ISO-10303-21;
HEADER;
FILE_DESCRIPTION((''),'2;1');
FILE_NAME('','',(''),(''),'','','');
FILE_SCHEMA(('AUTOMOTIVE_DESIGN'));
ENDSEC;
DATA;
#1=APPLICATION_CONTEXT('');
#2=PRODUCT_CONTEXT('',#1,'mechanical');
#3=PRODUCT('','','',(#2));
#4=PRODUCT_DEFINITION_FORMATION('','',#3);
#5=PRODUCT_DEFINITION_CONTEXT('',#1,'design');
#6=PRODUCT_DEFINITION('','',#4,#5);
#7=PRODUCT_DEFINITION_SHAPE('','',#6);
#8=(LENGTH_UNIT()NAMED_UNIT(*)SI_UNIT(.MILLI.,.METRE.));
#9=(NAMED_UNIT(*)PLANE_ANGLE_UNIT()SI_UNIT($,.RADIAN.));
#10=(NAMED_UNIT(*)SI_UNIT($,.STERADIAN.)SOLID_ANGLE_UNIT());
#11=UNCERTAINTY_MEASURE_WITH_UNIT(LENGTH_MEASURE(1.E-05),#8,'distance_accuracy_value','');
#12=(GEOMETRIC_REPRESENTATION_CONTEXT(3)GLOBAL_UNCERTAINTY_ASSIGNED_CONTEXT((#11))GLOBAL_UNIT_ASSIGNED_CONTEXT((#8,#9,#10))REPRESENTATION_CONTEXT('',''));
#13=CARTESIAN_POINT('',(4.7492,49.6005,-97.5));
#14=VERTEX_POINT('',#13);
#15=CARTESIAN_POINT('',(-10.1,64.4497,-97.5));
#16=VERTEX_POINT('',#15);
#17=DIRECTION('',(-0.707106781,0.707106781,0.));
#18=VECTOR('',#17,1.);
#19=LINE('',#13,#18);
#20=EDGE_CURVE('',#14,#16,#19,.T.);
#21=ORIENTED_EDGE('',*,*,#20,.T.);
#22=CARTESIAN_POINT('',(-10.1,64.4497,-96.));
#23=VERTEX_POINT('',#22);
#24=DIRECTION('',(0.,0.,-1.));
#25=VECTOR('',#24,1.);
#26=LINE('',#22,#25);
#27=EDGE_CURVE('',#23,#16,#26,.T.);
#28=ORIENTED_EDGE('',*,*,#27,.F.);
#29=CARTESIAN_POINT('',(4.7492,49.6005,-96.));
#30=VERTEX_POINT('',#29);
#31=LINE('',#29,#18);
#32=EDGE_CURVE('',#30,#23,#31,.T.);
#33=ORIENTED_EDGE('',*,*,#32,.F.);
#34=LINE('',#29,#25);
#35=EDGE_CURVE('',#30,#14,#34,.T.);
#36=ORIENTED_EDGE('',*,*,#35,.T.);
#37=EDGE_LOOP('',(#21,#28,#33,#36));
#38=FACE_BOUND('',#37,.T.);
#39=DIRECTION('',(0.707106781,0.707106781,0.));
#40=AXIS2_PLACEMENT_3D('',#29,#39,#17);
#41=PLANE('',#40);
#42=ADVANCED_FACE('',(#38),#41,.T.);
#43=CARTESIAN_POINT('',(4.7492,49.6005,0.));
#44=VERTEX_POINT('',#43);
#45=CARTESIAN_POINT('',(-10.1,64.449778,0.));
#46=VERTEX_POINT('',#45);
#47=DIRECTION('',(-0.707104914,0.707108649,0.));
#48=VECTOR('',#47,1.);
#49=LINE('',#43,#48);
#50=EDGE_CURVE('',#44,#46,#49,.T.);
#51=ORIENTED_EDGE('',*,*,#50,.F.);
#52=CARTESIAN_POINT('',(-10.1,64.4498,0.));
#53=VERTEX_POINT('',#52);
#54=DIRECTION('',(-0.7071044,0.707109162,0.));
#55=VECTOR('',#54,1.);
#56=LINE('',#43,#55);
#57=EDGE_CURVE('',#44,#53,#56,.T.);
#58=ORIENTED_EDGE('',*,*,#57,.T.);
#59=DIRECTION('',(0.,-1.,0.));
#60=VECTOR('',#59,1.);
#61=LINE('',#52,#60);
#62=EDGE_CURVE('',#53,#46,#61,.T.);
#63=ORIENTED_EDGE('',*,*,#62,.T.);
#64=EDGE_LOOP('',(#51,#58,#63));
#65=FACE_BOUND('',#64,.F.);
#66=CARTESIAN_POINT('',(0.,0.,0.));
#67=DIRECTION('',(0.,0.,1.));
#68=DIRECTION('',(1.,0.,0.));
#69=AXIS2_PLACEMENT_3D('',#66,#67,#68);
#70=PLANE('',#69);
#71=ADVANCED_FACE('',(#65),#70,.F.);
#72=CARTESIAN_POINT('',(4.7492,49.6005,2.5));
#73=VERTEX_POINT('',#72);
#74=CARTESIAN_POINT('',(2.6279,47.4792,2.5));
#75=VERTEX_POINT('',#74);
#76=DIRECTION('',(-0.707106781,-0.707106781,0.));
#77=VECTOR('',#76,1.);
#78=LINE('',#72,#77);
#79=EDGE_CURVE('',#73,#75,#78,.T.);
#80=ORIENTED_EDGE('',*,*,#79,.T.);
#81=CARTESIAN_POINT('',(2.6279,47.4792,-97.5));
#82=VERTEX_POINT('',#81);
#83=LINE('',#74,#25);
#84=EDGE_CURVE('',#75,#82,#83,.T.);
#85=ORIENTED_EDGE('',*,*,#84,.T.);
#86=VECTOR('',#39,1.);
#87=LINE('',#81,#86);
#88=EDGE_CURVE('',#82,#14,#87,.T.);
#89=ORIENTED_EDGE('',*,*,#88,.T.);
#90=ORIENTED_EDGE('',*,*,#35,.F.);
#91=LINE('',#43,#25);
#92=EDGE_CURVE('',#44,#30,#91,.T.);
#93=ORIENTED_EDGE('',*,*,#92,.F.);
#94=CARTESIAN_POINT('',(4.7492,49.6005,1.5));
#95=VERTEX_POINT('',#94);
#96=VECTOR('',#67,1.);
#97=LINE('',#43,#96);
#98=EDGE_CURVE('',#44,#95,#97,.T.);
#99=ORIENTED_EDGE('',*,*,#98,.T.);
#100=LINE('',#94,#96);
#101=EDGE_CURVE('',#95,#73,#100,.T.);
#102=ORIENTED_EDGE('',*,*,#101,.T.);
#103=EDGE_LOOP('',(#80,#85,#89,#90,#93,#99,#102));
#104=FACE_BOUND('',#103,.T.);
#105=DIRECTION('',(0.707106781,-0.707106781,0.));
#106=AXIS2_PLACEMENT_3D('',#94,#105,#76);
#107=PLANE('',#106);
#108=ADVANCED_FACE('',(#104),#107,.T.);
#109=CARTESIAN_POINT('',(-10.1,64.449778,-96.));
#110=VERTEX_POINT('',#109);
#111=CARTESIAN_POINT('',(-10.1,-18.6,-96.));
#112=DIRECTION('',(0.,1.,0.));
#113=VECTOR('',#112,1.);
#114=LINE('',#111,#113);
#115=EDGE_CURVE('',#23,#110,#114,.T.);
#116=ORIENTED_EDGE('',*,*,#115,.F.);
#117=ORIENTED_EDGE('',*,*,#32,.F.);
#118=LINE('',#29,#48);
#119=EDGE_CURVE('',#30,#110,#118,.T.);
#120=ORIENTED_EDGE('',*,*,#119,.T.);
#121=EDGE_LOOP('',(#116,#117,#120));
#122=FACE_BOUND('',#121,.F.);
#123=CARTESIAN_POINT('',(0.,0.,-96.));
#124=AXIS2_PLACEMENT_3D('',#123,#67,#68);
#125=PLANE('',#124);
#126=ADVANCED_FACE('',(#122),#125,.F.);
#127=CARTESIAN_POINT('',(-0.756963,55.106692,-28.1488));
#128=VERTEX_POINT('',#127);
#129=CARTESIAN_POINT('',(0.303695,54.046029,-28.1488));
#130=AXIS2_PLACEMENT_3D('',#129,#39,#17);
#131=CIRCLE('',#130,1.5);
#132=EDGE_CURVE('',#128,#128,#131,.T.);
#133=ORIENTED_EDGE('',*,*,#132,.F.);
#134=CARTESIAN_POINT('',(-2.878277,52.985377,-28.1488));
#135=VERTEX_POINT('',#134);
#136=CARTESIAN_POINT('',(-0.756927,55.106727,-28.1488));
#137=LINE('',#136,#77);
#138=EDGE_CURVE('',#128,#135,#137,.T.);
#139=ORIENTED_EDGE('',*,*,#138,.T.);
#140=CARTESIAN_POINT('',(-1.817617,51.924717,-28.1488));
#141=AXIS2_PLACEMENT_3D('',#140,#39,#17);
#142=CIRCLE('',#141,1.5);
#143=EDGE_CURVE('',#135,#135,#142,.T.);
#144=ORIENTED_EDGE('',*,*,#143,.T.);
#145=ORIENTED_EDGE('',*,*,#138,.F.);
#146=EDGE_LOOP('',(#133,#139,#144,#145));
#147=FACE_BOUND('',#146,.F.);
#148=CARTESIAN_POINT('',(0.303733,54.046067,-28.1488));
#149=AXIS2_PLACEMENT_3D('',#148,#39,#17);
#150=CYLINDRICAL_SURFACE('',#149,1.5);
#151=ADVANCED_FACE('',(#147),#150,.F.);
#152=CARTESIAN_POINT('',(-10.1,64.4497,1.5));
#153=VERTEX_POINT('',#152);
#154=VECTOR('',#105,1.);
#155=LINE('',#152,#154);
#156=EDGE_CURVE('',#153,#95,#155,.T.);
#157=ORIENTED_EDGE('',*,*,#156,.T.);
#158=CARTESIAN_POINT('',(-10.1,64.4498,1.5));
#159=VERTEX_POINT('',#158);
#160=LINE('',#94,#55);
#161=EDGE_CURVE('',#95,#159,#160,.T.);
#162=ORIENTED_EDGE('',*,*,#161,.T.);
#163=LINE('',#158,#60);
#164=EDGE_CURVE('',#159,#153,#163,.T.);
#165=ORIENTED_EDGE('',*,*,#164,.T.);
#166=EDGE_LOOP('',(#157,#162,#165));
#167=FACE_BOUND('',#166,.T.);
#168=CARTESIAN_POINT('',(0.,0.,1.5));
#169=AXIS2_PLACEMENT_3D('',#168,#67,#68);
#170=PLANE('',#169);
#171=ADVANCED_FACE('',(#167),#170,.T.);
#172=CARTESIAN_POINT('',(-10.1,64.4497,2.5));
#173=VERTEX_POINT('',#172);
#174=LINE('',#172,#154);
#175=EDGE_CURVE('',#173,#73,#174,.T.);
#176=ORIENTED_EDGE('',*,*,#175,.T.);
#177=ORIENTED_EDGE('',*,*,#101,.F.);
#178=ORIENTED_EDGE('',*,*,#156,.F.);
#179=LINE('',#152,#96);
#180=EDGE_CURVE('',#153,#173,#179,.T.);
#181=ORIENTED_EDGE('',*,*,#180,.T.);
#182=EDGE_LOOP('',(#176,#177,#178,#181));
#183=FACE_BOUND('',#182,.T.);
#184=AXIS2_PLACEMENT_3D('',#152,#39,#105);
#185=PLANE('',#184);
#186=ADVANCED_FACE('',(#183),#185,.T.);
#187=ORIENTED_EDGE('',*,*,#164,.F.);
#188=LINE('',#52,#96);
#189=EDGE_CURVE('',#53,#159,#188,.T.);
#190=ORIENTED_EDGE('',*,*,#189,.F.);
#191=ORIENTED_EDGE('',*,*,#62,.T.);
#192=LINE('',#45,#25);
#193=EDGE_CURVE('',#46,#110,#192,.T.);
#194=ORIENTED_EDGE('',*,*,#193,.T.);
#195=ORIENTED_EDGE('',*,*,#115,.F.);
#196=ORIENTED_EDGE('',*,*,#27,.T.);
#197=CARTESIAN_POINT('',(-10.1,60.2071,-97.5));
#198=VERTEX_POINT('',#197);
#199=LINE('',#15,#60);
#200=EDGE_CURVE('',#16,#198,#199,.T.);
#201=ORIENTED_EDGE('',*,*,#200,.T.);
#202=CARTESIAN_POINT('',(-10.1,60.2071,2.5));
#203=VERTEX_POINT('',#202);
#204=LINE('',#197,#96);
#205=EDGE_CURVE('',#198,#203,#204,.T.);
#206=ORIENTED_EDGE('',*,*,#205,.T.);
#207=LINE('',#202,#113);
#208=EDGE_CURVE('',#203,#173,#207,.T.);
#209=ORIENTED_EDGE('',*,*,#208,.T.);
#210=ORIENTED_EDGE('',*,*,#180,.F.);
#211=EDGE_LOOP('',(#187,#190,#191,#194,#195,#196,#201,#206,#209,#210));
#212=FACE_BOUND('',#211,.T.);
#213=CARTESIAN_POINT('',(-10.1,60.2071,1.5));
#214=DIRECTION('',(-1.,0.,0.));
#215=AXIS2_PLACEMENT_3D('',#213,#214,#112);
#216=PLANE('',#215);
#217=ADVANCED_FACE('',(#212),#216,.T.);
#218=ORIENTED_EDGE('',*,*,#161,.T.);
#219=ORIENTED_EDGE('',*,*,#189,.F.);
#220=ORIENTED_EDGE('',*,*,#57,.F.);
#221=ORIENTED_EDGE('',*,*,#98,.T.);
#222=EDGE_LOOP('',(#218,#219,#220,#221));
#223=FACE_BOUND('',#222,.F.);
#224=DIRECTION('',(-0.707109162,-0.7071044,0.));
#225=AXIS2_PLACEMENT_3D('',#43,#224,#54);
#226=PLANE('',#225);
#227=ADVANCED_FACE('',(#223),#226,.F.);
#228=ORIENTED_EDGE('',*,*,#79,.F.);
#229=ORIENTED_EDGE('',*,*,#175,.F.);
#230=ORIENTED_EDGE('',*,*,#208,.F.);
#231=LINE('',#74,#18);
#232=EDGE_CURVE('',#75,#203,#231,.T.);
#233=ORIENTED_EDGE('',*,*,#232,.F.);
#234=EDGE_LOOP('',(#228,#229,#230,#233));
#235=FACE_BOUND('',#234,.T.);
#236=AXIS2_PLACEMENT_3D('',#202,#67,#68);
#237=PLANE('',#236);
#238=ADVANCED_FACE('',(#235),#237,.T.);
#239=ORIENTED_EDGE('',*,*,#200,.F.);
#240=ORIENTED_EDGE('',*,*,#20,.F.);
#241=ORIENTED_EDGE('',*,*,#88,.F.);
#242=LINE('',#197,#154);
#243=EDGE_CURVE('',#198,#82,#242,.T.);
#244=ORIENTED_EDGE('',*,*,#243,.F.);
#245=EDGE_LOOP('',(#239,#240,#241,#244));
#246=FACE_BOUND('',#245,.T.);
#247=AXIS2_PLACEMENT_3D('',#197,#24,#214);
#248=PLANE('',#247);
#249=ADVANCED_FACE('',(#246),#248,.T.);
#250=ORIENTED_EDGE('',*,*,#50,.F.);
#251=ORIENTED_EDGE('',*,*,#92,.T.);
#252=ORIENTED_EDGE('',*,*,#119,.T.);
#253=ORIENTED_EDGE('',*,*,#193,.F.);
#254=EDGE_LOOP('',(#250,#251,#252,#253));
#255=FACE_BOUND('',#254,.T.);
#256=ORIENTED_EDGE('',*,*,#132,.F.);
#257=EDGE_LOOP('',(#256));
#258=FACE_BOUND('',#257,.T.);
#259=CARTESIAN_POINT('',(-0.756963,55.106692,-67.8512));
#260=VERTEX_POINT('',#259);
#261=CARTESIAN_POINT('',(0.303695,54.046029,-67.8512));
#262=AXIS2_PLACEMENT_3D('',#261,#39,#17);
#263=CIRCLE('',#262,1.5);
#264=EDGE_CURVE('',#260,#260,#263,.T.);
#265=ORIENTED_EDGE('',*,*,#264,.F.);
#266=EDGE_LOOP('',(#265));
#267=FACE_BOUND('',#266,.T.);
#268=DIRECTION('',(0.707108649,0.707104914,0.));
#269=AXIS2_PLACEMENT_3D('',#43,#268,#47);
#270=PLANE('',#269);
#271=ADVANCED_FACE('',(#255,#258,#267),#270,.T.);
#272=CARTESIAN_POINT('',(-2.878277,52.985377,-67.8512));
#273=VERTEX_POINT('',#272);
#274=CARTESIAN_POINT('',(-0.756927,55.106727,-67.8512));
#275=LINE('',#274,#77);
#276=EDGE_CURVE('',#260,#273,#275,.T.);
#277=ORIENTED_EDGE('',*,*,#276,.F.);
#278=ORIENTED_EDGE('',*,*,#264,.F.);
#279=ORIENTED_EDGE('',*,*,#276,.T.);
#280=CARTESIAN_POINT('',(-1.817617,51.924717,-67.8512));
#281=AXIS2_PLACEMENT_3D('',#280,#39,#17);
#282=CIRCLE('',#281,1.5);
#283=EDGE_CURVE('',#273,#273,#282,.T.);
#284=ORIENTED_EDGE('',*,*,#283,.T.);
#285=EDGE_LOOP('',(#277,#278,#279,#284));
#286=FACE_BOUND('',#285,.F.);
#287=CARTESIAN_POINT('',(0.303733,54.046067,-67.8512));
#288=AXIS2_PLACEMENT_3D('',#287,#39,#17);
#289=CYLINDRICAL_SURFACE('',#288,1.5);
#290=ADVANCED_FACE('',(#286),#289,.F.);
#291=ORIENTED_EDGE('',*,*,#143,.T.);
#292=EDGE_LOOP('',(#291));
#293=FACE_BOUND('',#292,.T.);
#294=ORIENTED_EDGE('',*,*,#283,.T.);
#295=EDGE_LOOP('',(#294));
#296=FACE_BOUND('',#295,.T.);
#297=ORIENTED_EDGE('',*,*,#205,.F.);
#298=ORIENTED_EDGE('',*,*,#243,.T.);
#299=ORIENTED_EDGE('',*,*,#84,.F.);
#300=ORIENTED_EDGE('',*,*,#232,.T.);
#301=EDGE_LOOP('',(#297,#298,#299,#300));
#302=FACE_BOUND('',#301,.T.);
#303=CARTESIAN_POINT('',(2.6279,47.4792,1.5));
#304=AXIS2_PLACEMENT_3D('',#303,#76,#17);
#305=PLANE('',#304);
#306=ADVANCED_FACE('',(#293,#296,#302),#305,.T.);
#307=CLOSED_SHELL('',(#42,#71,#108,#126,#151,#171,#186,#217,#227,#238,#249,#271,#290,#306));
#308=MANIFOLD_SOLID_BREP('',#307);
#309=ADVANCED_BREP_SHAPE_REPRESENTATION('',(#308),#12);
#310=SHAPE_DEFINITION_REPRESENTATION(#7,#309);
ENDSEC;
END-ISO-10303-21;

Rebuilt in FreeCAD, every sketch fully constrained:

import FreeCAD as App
import Part
import Sketcher
Q = App.Units.Quantity

doc = App.newDocument("Part")
params = doc.addObject("Spreadsheet::Sheet", "Params")
for row, (alias, value) in enumerate([
    ("sketch1_length", "18 mm"),
    ("sketch1_length2", "3 mm"),
    ("pad1_length", "96 mm"),
    ("sketch2_diameter", "3 mm"),
    ("sketch3_length", "21 mm"),
    ("sketch3_length2", "3 mm"),
    ("pad2_length", "1.5 mm"),
    ("sketch4_length", "3 mm"),
    ("sketch4_length2", "21 mm"),
    ("pad3_length", "1.5 mm"),
    ("sketch5_length", "21 mm"),
    ("sketch5_length2", "18 mm"),
    ("pad4_length", "1 mm"),
], start=1):
    params.set(f"A{row}", alias)
    params.set(f"B{row}", "=" + value)
    params.setAlias(f"B{row}", alias)

body = doc.addObject("PartDesign::Body", "Body")

# Sketch on XY plane
sketch1 = doc.addObject("Sketcher::SketchObject", "Sketch")
body.addObject(sketch1)
sketch1.AttachmentSupport = (doc.XY_Plane, [""])
sketch1.MapMode = "FlatFace"
sketch1.addGeometry([
    Part.LineSegment(App.Vector(-10.1, 60.2, 0), App.Vector(2.6, 47.5, 0)),
    Part.LineSegment(App.Vector(2.6, 47.5, 0), App.Vector(4.7, 49.6, 0)),
    Part.LineSegment(App.Vector(4.7, 49.6, 0), App.Vector(-10.1, 64.4, 0)),
    Part.LineSegment(App.Vector(-10.1, 64.4, 0), App.Vector(-10.1, 60.2, 0)),
], False)
sketch1.addConstraint([
    Sketcher.Constraint("Coincident", 0, 2, 1, 1),
    Sketcher.Constraint("Coincident", 1, 2, 2, 1),
    Sketcher.Constraint("Coincident", 2, 2, 3, 1),
    Sketcher.Constraint("Coincident", 3, 2, 0, 1),
    Sketcher.Constraint("Vertical", 3),
    Sketcher.Constraint("Perpendicular", 0, 1),
    Sketcher.Constraint("Perpendicular", 1, 2),
    Sketcher.Constraint("Distance", 0, 18.0),
    Sketcher.Constraint("Distance", 1, 3.0),
    Sketcher.Constraint("Angle", 0, Q("-45 deg")),
    Sketcher.Constraint("DistanceX", 2, 2, -1, 1, 10.1),
    Sketcher.Constraint("DistanceY", -1, 1, 3, 2, 60.207),
])
sketch1.setExpression("Constraints[7]", "Params.sketch1_length")
sketch1.setExpression("Constraints[8]", "Params.sketch1_length2")
pad1 = doc.addObject("PartDesign::Pad", "Pad")
body.addObject(pad1)
pad1.Profile = sketch1
pad1.setExpression("Length", "Params.pad1_length")
pad1.Reversed = True

# Sketch on an angled plane
sketch2 = doc.addObject("Sketcher::SketchObject", "Sketch001")
body.addObject(sketch2)
sketch2.Placement = App.Placement(App.Vector(-10.1, 64.4498, -96), App.Rotation(App.Vector(-0.707106781, 0.707106781, 0), App.Vector(0, 0, 0.999999999), App.Vector(0.707106781, 0.707106781, 0), "ZXY"))
sketch2.addGeometry([
    Part.Circle(App.Vector(-14.7, 28.1, 0), App.Vector(0, 0, 1), 1.5),
    Part.Circle(App.Vector(-14.7, 67.9, 0), App.Vector(0, 0, 1), 1.5),
], False)
sketch2.addConstraint([
    Sketcher.Constraint("Equal", 0, 1),
    Sketcher.Constraint("Vertical", 0, 3, 1, 3),
    Sketcher.Constraint("Diameter", 0, 3.0),
    Sketcher.Constraint("DistanceX", 0, 3, -1, 1, 14.713),
    Sketcher.Constraint("DistanceY", -1, 1, 0, 3, 28.1488),
    Sketcher.Constraint("DistanceY", -1, 1, 1, 3, 67.8512),
])
sketch2.setExpression("Constraints[2]", "Params.sketch2_diameter")
pocket1 = doc.addObject("PartDesign::Pocket", "Pocket")
body.addObject(pocket1)
pocket1.Profile = sketch2
pocket1.Type = "ThroughAll"

# Sketch on XY plane
sketch3 = doc.addObject("Sketcher::SketchObject", "Sketch002")
body.addObject(sketch3)
sketch3.AttachmentSupport = (doc.XY_Plane, [""])
sketch3.MapMode = "FlatFace"
sketch3.AttachmentOffset = App.Placement(App.Vector(0, 0, -96), App.Rotation())
sketch3.addGeometry([
    Part.LineSegment(App.Vector(-10.1, 60.2, 0), App.Vector(-10.1, 64.4, 0)),
    Part.LineSegment(App.Vector(-10.1, 64.4, 0), App.Vector(4.7, 49.6, 0)),
    Part.LineSegment(App.Vector(4.7, 49.6, 0), App.Vector(2.6, 47.5, 0)),
    Part.LineSegment(App.Vector(2.6, 47.5, 0), App.Vector(-10.1, 60.2, 0)),
], False)
sketch3.addConstraint([
    Sketcher.Constraint("Coincident", 0, 2, 1, 1),
    Sketcher.Constraint("Coincident", 1, 2, 2, 1),
    Sketcher.Constraint("Coincident", 2, 2, 3, 1),
    Sketcher.Constraint("Coincident", 3, 2, 0, 1),
    Sketcher.Constraint("Vertical", 0),
    Sketcher.Constraint("Perpendicular", 1, 2),
    Sketcher.Constraint("Perpendicular", 2, 3),
    Sketcher.Constraint("Angle", 1, Q("-45 deg")),
    Sketcher.Constraint("Distance", 1, 21.0),
    Sketcher.Constraint("Distance", 2, 3.0),
    Sketcher.Constraint("DistanceX", 0, 2, -1, 1, 10.1),
    Sketcher.Constraint("DistanceY", -1, 1, 3, 2, 60.207),
])
sketch3.setExpression("Constraints[8]", "Params.sketch3_length")
sketch3.setExpression("Constraints[9]", "Params.sketch3_length2")
pad2 = doc.addObject("PartDesign::Pad", "Pad001")
body.addObject(pad2)
pad2.Profile = sketch3
pad2.setExpression("Length", "Params.pad2_length")
pad2.Reversed = True

# Sketch on XY plane
sketch4 = doc.addObject("Sketcher::SketchObject", "Sketch003")
body.addObject(sketch4)
sketch4.AttachmentSupport = (doc.XY_Plane, [""])
sketch4.MapMode = "FlatFace"
sketch4.addGeometry([
    Part.LineSegment(App.Vector(2.6, 47.5, 0), App.Vector(4.7, 49.6, 0)),
    Part.LineSegment(App.Vector(4.7, 49.6, 0), App.Vector(-10.1, 64.4, 0)),
    Part.LineSegment(App.Vector(-10.1, 64.4, 0), App.Vector(-10.1, 60.2, 0)),
    Part.LineSegment(App.Vector(-10.1, 60.2, 0), App.Vector(2.6, 47.5, 0)),
], False)
sketch4.addConstraint([
    Sketcher.Constraint("Coincident", 0, 2, 1, 1),
    Sketcher.Constraint("Coincident", 1, 2, 2, 1),
    Sketcher.Constraint("Coincident", 2, 2, 3, 1),
    Sketcher.Constraint("Coincident", 3, 2, 0, 1),
    Sketcher.Constraint("Vertical", 2),
    Sketcher.Constraint("Perpendicular", 0, 1),
    Sketcher.Constraint("Parallel", 1, 3),
    Sketcher.Constraint("Angle", 0, Q("45 deg")),
    Sketcher.Constraint("Distance", 0, 3.0),
    Sketcher.Constraint("Distance", 1, 21.0),
    Sketcher.Constraint("DistanceX", 1, 2, -1, 1, 10.1),
    Sketcher.Constraint("DistanceY", -1, 1, 2, 2, 60.207),
])
sketch4.setExpression("Constraints[8]", "Params.sketch4_length")
sketch4.setExpression("Constraints[9]", "Params.sketch4_length2")
pad3 = doc.addObject("PartDesign::Pad", "Pad002")
body.addObject(pad3)
pad3.Profile = sketch4
pad3.setExpression("Length", "Params.pad3_length")

# Sketch on XY plane
sketch5 = doc.addObject("Sketcher::SketchObject", "Sketch004")
body.addObject(sketch5)
sketch5.AttachmentSupport = (doc.XY_Plane, [""])
sketch5.MapMode = "FlatFace"
sketch5.AttachmentOffset = App.Placement(App.Vector(0, 0, 1.5), App.Rotation())
sketch5.addGeometry([
    Part.LineSegment(App.Vector(4.7, 49.6, 0), App.Vector(-10.1, 64.4, 0)),
    Part.LineSegment(App.Vector(-10.1, 64.4, 0), App.Vector(-10.1, 60.2, 0)),
    Part.LineSegment(App.Vector(-10.1, 60.2, 0), App.Vector(2.6, 47.5, 0)),
    Part.LineSegment(App.Vector(2.6, 47.5, 0), App.Vector(4.7, 49.6, 0)),
], False)
sketch5.addConstraint([
    Sketcher.Constraint("Coincident", 0, 2, 1, 1),
    Sketcher.Constraint("Coincident", 1, 2, 2, 1),
    Sketcher.Constraint("Coincident", 2, 2, 3, 1),
    Sketcher.Constraint("Coincident", 3, 2, 0, 1),
    Sketcher.Constraint("Vertical", 1),
    Sketcher.Constraint("Parallel", 0, 2),
    Sketcher.Constraint("Perpendicular", 2, 3),
    Sketcher.Constraint("Angle", 0, Q("135 deg")),
    Sketcher.Constraint("Distance", 0, 21.0),
    Sketcher.Constraint("Distance", 2, 18.0),
    Sketcher.Constraint("DistanceX", 0, 2, -1, 1, 10.1),
    Sketcher.Constraint("DistanceY", -1, 1, 1, 2, 60.207),
])
sketch5.setExpression("Constraints[8]", "Params.sketch5_length")
sketch5.setExpression("Constraints[9]", "Params.sketch5_length2")
pad4 = doc.addObject("PartDesign::Pad", "Pad003")
body.addObject(pad4)
pad4.Profile = sketch5
pad4.setExpression("Length", "Params.pad4_length")

doc.recompute()
